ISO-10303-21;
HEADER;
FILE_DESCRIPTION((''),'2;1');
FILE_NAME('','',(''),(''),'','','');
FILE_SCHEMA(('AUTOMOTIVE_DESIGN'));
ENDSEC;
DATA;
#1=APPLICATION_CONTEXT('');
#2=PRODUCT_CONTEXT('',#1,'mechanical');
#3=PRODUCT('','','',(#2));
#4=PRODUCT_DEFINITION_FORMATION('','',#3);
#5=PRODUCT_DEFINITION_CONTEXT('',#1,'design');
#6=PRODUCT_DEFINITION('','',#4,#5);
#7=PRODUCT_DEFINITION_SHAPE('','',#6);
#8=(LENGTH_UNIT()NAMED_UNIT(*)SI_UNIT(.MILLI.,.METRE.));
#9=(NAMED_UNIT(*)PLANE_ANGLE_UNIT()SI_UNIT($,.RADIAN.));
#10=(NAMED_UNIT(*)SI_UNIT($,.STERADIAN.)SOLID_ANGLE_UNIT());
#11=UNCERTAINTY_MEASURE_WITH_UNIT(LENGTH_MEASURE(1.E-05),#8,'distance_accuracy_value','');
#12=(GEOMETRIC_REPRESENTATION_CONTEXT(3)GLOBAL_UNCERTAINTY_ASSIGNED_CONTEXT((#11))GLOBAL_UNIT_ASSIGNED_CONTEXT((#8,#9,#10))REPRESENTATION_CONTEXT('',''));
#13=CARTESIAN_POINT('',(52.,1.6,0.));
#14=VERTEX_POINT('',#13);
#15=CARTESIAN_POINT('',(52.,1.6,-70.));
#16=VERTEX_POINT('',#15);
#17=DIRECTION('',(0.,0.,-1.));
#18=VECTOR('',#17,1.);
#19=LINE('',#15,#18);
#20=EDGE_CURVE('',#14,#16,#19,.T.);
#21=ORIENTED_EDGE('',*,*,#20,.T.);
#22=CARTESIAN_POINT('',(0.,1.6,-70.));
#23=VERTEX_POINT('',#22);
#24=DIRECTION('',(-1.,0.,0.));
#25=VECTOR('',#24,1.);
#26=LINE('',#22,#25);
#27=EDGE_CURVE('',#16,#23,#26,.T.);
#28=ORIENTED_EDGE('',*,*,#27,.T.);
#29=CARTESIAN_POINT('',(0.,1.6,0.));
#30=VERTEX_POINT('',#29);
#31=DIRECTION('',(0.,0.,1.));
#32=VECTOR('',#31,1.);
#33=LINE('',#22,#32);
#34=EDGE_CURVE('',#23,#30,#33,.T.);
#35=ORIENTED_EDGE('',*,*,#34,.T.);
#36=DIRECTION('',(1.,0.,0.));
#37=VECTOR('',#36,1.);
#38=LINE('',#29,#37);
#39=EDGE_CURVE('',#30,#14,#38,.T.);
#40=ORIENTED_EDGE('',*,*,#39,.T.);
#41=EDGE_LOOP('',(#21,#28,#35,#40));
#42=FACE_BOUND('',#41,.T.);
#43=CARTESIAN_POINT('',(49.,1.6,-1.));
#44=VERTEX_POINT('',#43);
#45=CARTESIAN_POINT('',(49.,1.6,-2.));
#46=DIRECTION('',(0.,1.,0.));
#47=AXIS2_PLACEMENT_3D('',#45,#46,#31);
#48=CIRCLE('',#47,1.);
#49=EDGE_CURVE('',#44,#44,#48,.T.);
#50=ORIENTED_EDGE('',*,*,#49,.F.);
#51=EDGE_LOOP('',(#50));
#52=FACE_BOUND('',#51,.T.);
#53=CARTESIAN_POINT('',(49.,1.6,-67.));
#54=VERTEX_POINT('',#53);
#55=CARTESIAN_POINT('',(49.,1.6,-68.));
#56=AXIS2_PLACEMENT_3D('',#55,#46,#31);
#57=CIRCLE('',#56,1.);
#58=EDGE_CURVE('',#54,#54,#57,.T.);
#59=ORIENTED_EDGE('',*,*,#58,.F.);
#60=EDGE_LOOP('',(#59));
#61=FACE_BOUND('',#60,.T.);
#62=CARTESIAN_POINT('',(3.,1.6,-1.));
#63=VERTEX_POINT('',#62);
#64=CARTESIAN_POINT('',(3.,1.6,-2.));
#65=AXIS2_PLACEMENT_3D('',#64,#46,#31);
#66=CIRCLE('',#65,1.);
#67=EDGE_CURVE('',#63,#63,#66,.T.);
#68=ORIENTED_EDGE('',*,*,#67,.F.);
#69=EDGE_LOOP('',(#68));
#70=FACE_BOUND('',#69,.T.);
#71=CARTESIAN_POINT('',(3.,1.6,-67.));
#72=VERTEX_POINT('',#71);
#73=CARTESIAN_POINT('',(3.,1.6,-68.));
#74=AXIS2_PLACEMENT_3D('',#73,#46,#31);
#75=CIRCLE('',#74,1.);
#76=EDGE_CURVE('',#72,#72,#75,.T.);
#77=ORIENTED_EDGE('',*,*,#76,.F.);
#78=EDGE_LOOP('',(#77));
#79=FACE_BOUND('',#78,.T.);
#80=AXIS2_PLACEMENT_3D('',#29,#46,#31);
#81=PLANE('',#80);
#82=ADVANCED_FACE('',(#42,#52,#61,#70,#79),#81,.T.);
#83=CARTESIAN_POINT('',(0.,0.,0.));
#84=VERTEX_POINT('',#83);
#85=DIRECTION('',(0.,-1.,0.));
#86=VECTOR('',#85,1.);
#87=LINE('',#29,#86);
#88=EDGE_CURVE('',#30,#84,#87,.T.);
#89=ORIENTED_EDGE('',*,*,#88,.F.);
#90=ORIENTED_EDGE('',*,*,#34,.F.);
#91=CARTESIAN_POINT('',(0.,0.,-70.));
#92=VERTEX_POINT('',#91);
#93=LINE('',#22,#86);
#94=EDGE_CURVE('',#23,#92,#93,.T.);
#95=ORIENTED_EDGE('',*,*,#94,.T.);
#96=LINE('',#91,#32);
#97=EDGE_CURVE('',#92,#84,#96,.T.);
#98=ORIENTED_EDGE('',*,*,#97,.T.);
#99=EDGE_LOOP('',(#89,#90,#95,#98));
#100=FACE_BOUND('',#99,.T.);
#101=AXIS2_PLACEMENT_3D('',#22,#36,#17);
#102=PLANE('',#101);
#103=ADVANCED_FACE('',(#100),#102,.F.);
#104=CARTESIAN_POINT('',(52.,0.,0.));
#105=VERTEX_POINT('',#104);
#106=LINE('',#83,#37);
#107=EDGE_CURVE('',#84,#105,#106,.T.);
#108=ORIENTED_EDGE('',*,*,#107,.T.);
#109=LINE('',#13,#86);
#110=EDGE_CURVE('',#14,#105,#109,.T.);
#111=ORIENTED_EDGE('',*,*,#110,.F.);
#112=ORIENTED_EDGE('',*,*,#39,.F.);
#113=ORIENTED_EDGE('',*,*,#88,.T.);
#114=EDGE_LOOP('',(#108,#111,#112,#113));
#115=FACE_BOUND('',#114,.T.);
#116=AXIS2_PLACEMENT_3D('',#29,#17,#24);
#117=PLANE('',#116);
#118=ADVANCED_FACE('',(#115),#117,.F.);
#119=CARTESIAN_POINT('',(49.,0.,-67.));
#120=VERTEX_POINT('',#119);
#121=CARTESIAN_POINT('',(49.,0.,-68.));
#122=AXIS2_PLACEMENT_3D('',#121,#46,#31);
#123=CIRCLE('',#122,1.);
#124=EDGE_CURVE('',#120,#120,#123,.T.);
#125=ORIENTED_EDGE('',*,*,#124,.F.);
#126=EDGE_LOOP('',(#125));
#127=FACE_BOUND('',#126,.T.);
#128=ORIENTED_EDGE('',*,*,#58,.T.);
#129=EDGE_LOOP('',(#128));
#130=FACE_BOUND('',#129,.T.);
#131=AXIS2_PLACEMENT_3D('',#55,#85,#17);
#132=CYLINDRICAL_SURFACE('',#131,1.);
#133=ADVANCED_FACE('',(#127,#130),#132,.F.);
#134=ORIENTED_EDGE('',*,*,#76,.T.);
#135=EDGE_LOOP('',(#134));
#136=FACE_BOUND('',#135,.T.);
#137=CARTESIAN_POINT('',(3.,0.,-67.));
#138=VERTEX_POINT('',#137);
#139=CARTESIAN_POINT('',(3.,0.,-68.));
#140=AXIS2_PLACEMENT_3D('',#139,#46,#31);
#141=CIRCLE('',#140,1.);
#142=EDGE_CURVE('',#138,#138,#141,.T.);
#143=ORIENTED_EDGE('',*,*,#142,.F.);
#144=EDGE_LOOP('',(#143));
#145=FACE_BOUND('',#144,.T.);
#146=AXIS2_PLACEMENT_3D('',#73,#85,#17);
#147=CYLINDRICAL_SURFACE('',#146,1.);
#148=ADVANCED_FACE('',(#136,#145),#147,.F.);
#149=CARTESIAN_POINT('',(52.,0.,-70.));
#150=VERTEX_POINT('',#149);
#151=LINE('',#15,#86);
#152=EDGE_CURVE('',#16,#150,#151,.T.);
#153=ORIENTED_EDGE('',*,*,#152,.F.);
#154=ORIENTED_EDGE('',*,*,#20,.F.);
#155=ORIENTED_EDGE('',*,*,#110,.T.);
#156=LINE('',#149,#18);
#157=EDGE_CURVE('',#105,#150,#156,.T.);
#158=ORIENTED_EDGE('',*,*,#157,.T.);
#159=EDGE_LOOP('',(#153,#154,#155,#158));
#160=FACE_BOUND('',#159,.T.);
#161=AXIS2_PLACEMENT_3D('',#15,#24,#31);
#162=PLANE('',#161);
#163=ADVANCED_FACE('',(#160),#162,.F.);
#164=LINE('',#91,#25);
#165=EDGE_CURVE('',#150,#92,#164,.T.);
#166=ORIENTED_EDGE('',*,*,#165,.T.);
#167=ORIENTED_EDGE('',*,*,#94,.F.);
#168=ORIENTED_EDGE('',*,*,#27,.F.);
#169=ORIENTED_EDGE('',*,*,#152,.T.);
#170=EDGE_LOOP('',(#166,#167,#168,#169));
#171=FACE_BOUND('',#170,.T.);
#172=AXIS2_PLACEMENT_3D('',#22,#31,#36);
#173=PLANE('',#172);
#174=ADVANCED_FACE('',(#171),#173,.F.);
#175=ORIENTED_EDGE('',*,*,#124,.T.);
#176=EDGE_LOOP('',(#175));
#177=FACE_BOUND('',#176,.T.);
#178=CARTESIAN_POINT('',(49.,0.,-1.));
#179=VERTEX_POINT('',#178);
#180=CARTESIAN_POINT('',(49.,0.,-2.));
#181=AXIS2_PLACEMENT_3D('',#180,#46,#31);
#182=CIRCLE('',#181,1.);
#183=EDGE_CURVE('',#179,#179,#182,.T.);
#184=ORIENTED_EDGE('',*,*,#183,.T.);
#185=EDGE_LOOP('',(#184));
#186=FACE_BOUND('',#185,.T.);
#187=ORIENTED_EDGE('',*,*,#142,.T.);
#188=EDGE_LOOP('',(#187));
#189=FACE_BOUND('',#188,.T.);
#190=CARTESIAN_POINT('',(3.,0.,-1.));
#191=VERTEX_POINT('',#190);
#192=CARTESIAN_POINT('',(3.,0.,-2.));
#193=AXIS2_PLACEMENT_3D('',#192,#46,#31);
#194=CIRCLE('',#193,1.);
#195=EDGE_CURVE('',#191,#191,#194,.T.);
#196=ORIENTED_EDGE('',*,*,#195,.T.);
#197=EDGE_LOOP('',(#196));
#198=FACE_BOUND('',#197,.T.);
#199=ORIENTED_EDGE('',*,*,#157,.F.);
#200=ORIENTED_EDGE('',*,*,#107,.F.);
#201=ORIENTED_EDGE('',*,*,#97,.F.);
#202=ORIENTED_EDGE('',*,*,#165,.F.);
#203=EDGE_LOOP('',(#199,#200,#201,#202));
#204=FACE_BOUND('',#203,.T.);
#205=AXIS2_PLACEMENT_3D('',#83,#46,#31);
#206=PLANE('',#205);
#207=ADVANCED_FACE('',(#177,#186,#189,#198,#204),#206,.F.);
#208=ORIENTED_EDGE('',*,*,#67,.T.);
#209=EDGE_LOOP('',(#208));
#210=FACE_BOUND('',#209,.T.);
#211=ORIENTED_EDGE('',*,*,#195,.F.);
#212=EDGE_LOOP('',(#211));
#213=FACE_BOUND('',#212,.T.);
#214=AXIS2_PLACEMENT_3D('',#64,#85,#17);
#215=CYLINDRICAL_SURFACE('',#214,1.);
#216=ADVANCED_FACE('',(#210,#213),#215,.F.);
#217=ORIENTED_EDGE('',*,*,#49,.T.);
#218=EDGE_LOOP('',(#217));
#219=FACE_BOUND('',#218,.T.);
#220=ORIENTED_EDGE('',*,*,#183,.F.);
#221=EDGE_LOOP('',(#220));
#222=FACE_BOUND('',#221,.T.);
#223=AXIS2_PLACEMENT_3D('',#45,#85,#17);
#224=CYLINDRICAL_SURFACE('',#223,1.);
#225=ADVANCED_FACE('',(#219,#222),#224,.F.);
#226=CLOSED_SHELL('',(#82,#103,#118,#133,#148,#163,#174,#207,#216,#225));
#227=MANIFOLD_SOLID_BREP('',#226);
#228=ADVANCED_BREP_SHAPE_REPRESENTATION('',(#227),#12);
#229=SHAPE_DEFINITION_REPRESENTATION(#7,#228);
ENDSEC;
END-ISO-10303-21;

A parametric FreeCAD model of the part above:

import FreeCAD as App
import Part
import Sketcher

V = App.Vector


def add_polygon(sketch, points):
    """Adds a closed chain of lines whose ends are joined by coincident constraints."""
    first, n = sketch.GeometryCount, len(points)
    for a, b in zip(points, points[1:] + points[:1]):
        sketch.addGeometry(Part.LineSegment(App.Vector(*a, 0), App.Vector(*b, 0)), False)
    for i in range(n):
        sketch.addConstraint(Sketcher.Constraint("Coincident", first + i, 2, first + (i + 1) % n, 1))

doc = App.newDocument("Part")
body = doc.addObject("PartDesign::Body", "Body")

# Sketch on XZ plane
sketch1 = body.newObject("Sketcher::SketchObject", "Sketch")
sketch1.AttachmentSupport = (doc.getObject("XZ_Plane"), [""])
sketch1.MapMode = "FlatFace"
add_polygon(sketch1, [(0, -70), (0, 0), (52, 0), (52, -70)])  # lines 0-3
sketch1.addGeometry(Part.Circle(V(3, -2, 0), V(0, 0, 1), 1), False)  # 4
sketch1.addGeometry(Part.Circle(V(49, -2, 0), V(0, 0, 1), 1), False)  # 5
sketch1.addGeometry(Part.Circle(V(3, -68, 0), V(0, 0, 1), 1), False)  # 6
sketch1.addGeometry(Part.Circle(V(49, -68, 0), V(0, 0, 1), 1), False)  # 7
sketch1.addConstraint([
    Sketcher.Constraint("Vertical", 0),
    Sketcher.Constraint("Horizontal", 1),
    Sketcher.Constraint("Vertical", 2),
    Sketcher.Constraint("Horizontal", 3),
    Sketcher.Constraint("Coincident", 0, 2, -1, 1),
    Sketcher.Constraint("Equal", 4, 5),
    Sketcher.Constraint("Equal", 5, 6),
    Sketcher.Constraint("Equal", 6, 7),
    Sketcher.Constraint("Horizontal", 4, 3, 5, 3),
    Sketcher.Constraint("Horizontal", 6, 3, 7, 3),
    Sketcher.Constraint("Vertical", 4, 3, 6, 3),
    Sketcher.Constraint("Vertical", 5, 3, 7, 3),
    Sketcher.Constraint("Diameter", 4, 2.0),
    Sketcher.Constraint("DistanceX", 1, 1, 1, 2, 52.0),
    Sketcher.Constraint("DistanceY", 0, 1, 0, 2, 70.0),
    Sketcher.Constraint("DistanceX", -1, 1, 4, 3, 3.0),
    Sketcher.Constraint("DistanceY", 4, 3, -1, 1, 2.0),
    Sketcher.Constraint("DistanceX", -1, 1, 5, 3, 49.0),
    Sketcher.Constraint("DistanceY", 6, 3, -1, 1, 68.0),
])
pad1 = body.newObject("PartDesign::Pad", "Pad")
pad1.Profile = sketch1
pad1.Length = 1.6
pad1.Reversed = True

doc.recompute()
